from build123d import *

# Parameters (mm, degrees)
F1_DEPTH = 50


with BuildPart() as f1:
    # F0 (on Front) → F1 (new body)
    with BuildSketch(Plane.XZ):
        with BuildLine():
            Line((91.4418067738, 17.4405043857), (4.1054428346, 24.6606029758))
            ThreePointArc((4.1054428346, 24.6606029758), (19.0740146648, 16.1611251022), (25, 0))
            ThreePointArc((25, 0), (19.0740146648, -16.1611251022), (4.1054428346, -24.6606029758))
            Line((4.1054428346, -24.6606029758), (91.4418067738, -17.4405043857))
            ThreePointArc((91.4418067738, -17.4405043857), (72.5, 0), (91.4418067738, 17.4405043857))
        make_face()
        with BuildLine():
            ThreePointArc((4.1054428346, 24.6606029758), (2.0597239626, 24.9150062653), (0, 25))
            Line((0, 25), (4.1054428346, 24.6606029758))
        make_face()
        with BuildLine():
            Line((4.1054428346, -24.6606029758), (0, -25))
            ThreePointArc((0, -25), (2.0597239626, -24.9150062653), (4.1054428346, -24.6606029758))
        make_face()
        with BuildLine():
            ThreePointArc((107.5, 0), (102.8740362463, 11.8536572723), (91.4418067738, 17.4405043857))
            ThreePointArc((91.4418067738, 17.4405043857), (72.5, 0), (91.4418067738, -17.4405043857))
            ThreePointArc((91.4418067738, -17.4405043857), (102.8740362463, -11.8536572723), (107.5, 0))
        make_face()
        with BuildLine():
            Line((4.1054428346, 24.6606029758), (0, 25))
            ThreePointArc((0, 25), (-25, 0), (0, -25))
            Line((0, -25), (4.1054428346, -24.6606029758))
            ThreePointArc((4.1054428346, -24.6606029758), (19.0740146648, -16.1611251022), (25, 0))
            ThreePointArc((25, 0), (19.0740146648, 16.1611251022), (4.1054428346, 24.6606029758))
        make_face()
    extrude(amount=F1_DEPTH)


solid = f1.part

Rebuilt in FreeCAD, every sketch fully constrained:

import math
import FreeCAD as App
import Part
import Sketcher
from FreeCAD import Vector
Q = App.Units.Quantity

doc = App.newDocument("Part")
body = doc.addObject("PartDesign::Body", "Body")

# Sketch on XZ plane
sketch1 = body.newObject("Sketcher::SketchObject", "Sketch")
sketch1.AttachmentSupport = (doc.getObject("XZ_Plane"), [""])
sketch1.MapMode = "FlatFace"
sketch1.addGeometry(Part.LineSegment(Vector(91.441807, 17.440504, 0), Vector(4.105443, 24.660603, 0)), False)
sketch1.addGeometry(Part.ArcOfCircle(Part.Circle(Vector(0, 0, 0), Vector(0, 0, 1), 25), math.radians(80.548207), math.radians(90)), False)
sketch1.addGeometry(Part.ArcOfCircle(Part.Circle(Vector(0, 0, 0), Vector(0, 0, 1), 25), math.radians(90), math.radians(270)), False)
sketch1.addGeometry(Part.ArcOfCircle(Part.Circle(Vector(0, 0, 0), Vector(0, 0, 1), 25), math.radians(-90), math.radians(-80.548207)), False)
sketch1.addGeometry(Part.LineSegment(Vector(4.105443, -24.660603, 0), Vector(91.441807, -17.440504, 0)), False)
sketch1.addGeometry(Part.ArcOfCircle(Part.Circle(Vector(90, 0, 0), Vector(0, 0, 1), 17.5), math.radians(-85.274104), math.radians(85.274104)), False)
sketch1.addConstraint(Sketcher.Constraint("Coincident", 0, 2, 1, 1))
sketch1.addConstraint(Sketcher.Constraint("Tangent", 1, 2, 2, 1))
sketch1.addConstraint(Sketcher.Constraint("Tangent", 2, 2, 3, 1))
sketch1.addConstraint(Sketcher.Constraint("Coincident", 3, 2, 4, 1))
sketch1.addConstraint(Sketcher.Constraint("Tangent", 4, 2, 5, 1))
sketch1.addConstraint(Sketcher.Constraint("Tangent", 5, 2, 0, 1))
sketch1.addConstraint(Sketcher.Constraint("Coincident", 1, 3, -1, 1))
sketch1.addConstraint(Sketcher.Constraint("Equal", 1, 2))
sketch1.addConstraint(Sketcher.Constraint("Equal", 2, 3))
sketch1.addConstraint(Sketcher.Constraint("Symmetric", 4, 2, 5, 2, -1))
sketch1.addConstraint(Sketcher.Constraint("PointOnObject", 1, 2, -2))
sketch1.addConstraint(Sketcher.Constraint("PointOnObject", 2, 2, -2))
sketch1.addConstraint(Sketcher.Constraint("Radius", 1, Q("25 mm")))
sketch1.addConstraint(Sketcher.Constraint("Radius", 5, Q("17.5 mm")))
sketch1.addConstraint(Sketcher.Constraint("DistanceX", -1, 1, 5, 3, Q("90 mm")))
sketch1.addConstraint(Sketcher.Constraint("Distance", 0, Q("87.634299 mm")))
pad1 = body.newObject("PartDesign::Pad", "Pad")
pad1.Profile = sketch1
pad1.Length = 50

doc.recompute()
